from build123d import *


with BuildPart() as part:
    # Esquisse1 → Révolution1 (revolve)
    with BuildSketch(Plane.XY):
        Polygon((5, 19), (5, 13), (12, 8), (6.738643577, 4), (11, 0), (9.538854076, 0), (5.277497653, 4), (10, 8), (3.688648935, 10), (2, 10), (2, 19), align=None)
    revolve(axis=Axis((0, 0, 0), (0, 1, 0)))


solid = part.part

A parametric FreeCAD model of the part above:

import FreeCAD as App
import Part
import Sketcher

V = App.Vector


def add_polygon(sketch, points):
    """Adds a closed chain of lines whose ends are joined by coincident constraints."""
    first, n = sketch.GeometryCount, len(points)
    for a, b in zip(points, points[1:] + points[:1]):
        sketch.addGeometry(Part.LineSegment(App.Vector(*a, 0), App.Vector(*b, 0)), False)
    for i in range(n):
        sketch.addConstraint(Sketcher.Constraint("Coincident", first + i, 2, first + (i + 1) % n, 1))

doc = App.newDocument("Part")
body = doc.addObject("PartDesign::Body", "Body")

# Sketch on XY plane
sketch1 = doc.addObject("Sketcher::SketchObject", "Sketch")
body.addObject(sketch1)
sketch1.AttachmentSupport = (doc.XY_Plane, [""])
sketch1.MapMode = "FlatFace"
add_polygon(sketch1, [(5, 13), (5, 19), (2, 19), (2, 10), (3.688649, 10), (10, 8), (5.277498, 4), (9.538854, 0), (11, 0), (6.738644, 4), (12, 8)])  # lines 0-10
sketch1.addConstraint(Sketcher.Constraint("Vertical", 0))
sketch1.addConstraint(Sketcher.Constraint("Horizontal", 1))
sketch1.addConstraint(Sketcher.Constraint("Vertical", 2))
sketch1.addConstraint(Sketcher.Constraint("Horizontal", 3))
sketch1.addConstraint(Sketcher.Constraint("Horizontal", 7))
sketch1.addConstraint(Sketcher.Constraint("PointOnObject", 6, 2, -1))
sketch1.addConstraint(Sketcher.Constraint("Parallel", 6, 8))
sketch1.addConstraint(Sketcher.Constraint("Horizontal", 5, 2, 8, 2))
sketch1.addConstraint(Sketcher.Constraint("Horizontal", 4, 2, 9, 2))
sketch1.addConstraint(Sketcher.Constraint("DistanceX", 1, 2, 1, 1, 3.0))
sketch1.addConstraint(Sketcher.Constraint("DistanceY", 0, 1, 0, 2, 6.0))
sketch1.addConstraint(Sketcher.Constraint("DistanceY", 2, 2, 2, 1, 9.0))
sketch1.addConstraint(Sketcher.Constraint("DistanceX", -1, 1, 0, 2, 5.0))
sketch1.addConstraint(Sketcher.Constraint("DistanceY", -1, 1, 0, 2, 19.0))
sketch1.addConstraint(Sketcher.Constraint("DistanceX", -1, 1, 4, 2, 10.0))
sketch1.addConstraint(Sketcher.Constraint("DistanceY", -1, 1, 4, 2, 8.0))
sketch1.addConstraint(Sketcher.Constraint("DistanceY", -1, 1, 5, 2, 4.0))
sketch1.addConstraint(Sketcher.Constraint("DistanceX", -1, 1, 7, 2, 11.0))
sketch1.addConstraint(Sketcher.Constraint("DistanceX", -1, 1, 9, 2, 12.0))
sketch1.addConstraint(Sketcher.Constraint("DistanceX", 3, 1, 3, 2, 1.688649))
sketch1.addConstraint(Sketcher.Constraint("DistanceX", 7, 1, 7, 2, 1.461146))
sketch1.addConstraint(Sketcher.Constraint("DistanceX", 3, 2, 5, 2, 1.588849))
revolution = doc.addObject("PartDesign::Revolution", "Revolution")
body.addObject(revolution)
revolution.Profile = sketch1
revolution.ReferenceAxis = (sketch1, ["V_Axis"])
revolution.Angle = 360

doc.recompute()
